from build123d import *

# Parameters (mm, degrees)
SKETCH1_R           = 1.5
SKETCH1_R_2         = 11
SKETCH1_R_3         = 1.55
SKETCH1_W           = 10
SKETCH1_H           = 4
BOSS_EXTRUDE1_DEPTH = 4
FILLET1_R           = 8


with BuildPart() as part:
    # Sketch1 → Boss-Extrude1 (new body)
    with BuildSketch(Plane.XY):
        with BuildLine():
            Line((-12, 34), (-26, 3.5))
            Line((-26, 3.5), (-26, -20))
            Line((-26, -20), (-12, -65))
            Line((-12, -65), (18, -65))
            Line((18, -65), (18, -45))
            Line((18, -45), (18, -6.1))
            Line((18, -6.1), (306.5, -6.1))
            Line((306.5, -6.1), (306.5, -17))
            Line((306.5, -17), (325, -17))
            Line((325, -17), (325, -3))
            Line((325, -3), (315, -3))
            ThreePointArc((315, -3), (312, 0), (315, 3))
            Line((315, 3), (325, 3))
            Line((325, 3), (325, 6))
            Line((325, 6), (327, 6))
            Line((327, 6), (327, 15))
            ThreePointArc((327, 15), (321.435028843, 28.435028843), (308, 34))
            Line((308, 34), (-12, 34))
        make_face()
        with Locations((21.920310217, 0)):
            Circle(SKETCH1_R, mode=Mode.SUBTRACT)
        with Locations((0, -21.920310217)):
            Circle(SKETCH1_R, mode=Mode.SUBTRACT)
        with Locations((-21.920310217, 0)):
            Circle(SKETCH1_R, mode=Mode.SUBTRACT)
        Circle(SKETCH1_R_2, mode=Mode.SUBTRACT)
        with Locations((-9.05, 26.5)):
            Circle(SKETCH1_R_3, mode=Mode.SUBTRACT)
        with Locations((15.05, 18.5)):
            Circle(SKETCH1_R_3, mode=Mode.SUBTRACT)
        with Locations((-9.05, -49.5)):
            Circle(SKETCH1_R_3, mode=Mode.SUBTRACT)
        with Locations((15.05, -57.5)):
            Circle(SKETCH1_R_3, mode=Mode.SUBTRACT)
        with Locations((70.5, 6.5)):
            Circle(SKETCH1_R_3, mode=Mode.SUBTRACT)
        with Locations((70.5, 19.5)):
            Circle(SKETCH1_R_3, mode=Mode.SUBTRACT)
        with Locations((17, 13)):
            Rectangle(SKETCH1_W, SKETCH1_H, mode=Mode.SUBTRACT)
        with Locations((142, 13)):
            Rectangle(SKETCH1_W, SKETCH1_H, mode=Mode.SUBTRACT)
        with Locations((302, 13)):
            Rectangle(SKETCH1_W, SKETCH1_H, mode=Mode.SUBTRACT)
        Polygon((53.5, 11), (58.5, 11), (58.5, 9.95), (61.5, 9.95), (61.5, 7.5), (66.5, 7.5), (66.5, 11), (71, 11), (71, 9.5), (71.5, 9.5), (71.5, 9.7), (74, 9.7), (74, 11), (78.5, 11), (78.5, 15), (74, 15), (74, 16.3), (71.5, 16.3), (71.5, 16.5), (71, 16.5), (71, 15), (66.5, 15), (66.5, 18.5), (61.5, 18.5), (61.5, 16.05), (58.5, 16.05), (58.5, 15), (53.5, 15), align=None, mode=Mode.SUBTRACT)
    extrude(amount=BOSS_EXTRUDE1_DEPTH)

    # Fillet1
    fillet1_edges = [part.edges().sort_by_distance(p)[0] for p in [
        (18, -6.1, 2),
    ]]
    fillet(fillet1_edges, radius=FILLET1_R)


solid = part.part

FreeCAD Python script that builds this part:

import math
import FreeCAD as App
import Part
import Sketcher
from FreeCAD import Vector
Q = App.Units.Quantity


def edges_at(feature, points):
    """Names of the edges that pass closest to the given points."""
    edges = feature.Shape.Edges
    near = lambda p: min(range(len(edges)), key=lambda i: edges[i].distToShape(Part.Vertex(*p))[0])
    return sorted({f"Edge{near(p) + 1}" for p in points})

doc = App.newDocument("Part")
params = doc.addObject("Spreadsheet::Sheet", "Params")
for row, (alias, value) in enumerate([
    ("sketch1_diameter", "3 mm"),
    ("sketch1_diameter2", "22 mm"),
    ("sketch1_radius", "3 mm"),
    ("sketch1_radius2", "19 mm"),
    ("sketch1_diameter3", "3.1 mm"),
    ("pad1_length", "4 mm"),
    ("fillet_radius", "8 mm"),
], start=1):
    params.set(f"A{row}", alias)
    params.set(f"B{row}", "=" + value)
    params.setAlias(f"B{row}", alias)

body = doc.addObject("PartDesign::Body", "Body")

# Sketch on XY plane
sketch1 = body.newObject("Sketcher::SketchObject", "Sketch")
sketch1.AttachmentSupport = (doc.getObject("XY_Plane"), [""])
sketch1.MapMode = "FlatFace"
sketch1.addGeometry([
    Part.LineSegment(Vector(-12, 34, 0), Vector(-26, 3.5, 0)),  # 0
    Part.LineSegment(Vector(-26, 3.5, 0), Vector(-26, -20, 0)),  # 1
    Part.LineSegment(Vector(-26, -20, 0), Vector(-12, -65, 0)),  # 2
    Part.LineSegment(Vector(-12, -65, 0), Vector(18, -65, 0)),  # 3
    Part.LineSegment(Vector(18, -65, 0), Vector(18, -6.1, 0)),  # 4
    Part.LineSegment(Vector(18, -6.1, 0), Vector(306.5, -6.1, 0)),  # 5
    Part.LineSegment(Vector(306.5, -6.1, 0), Vector(306.5, -17, 0)),  # 6
    Part.LineSegment(Vector(306.5, -17, 0), Vector(325, -17, 0)),  # 7
    Part.LineSegment(Vector(325, -17, 0), Vector(325, -3, 0)),  # 8
    Part.LineSegment(Vector(325, -3, 0), Vector(315, -3, 0)),  # 9
    Part.ArcOfCircle(Part.Circle(Vector(315, 0, 0), Vector(0, 0, 1), 3), math.radians(90), math.radians(270)),  # 10
    Part.LineSegment(Vector(315, 3, 0), Vector(325, 3, 0)),  # 11
    Part.LineSegment(Vector(325, 3, 0), Vector(325, 6, 0)),  # 12
    Part.LineSegment(Vector(325, 6, 0), Vector(327, 6, 0)),  # 13
    Part.LineSegment(Vector(327, 6, 0), Vector(327, 15, 0)),  # 14
    Part.ArcOfCircle(Part.Circle(Vector(308, 15, 0), Vector(0, 0, 1), 19), math.radians(0), math.radians(90)),  # 15
    Part.LineSegment(Vector(308, 34, 0), Vector(-12, 34, 0)),  # 16
    Part.Circle(Vector(15.05, -57.5, 0), Vector(0, 0, 1), 1.55),  # 17
    Part.Circle(Vector(-9.05, -49.5, 0), Vector(0, 0, 1), 1.55),  # 18
    Part.Circle(Vector(0, -21.92031, 0), Vector(0, 0, 1), 1.5),  # 19
    Part.Circle(Vector(-21.92031, 0, 0), Vector(0, 0, 1), 1.5),  # 20
    Part.Circle(Vector(0, 0, 0), Vector(0, 0, 1), 11),  # 21
    Part.Circle(Vector(21.92031, 0, 0), Vector(0, 0, 1), 1.5),  # 22
    Part.LineSegment(Vector(22, 11, 0), Vector(12, 11, 0)),  # 23
    Part.LineSegment(Vector(12, 11, 0), Vector(12, 15, 0)),  # 24
    Part.LineSegment(Vector(12, 15, 0), Vector(22, 15, 0)),  # 25
    Part.LineSegment(Vector(22, 15, 0), Vector(22, 11, 0)),  # 26
    Part.Circle(Vector(15.05, 18.5, 0), Vector(0, 0, 1), 1.55),  # 27
    Part.Circle(Vector(-9.05, 26.5, 0), Vector(0, 0, 1), 1.55),  # 28
    Part.Circle(Vector(70.5, 6.5, 0), Vector(0, 0, 1), 1.55),  # 29
    Part.LineSegment(Vector(58.5, 11, 0), Vector(53.5, 11, 0)),  # 30
    Part.LineSegment(Vector(53.5, 11, 0), Vector(53.5, 15, 0)),  # 31
    Part.LineSegment(Vector(53.5, 15, 0), Vector(58.5, 15, 0)),  # 32
    Part.LineSegment(Vector(58.5, 15, 0), Vector(58.5, 16.05, 0)),  # 33
    Part.LineSegment(Vector(58.5, 16.05, 0), Vector(61.5, 16.05, 0)),  # 34
    Part.LineSegment(Vector(61.5, 16.05, 0), Vector(61.5, 18.5, 0)),  # 35
    Part.LineSegment(Vector(61.5, 18.5, 0), Vector(66.5, 18.5, 0)),  # 36
    Part.LineSegment(Vector(66.5, 18.5, 0), Vector(66.5, 15, 0)),  # 37
    Part.LineSegment(Vector(66.5, 15, 0), Vector(71, 15, 0)),  # 38
    Part.LineSegment(Vector(71, 15, 0), Vector(71, 16.5, 0)),  # 39
    Part.LineSegment(Vector(71, 16.5, 0), Vector(71.5, 16.5, 0)),  # 40
    Part.LineSegment(Vector(71.5, 16.5, 0), Vector(71.5, 16.3, 0)),  # 41
    Part.LineSegment(Vector(71.5, 16.3, 0), Vector(74, 16.3, 0)),  # 42
    Part.LineSegment(Vector(74, 16.3, 0), Vector(74, 15, 0)),  # 43
    Part.LineSegment(Vector(74, 15, 0), Vector(78.5, 15, 0)),  # 44
    Part.LineSegment(Vector(78.5, 15, 0), Vector(78.5, 11, 0)),  # 45
    Part.LineSegment(Vector(78.5, 11, 0), Vector(74, 11, 0)),  # 46
    Part.LineSegment(Vector(74, 11, 0), Vector(74, 9.7, 0)),  # 47
    Part.LineSegment(Vector(74, 9.7, 0), Vector(71.5, 9.7, 0)),  # 48
    Part.LineSegment(Vector(71.5, 9.7, 0), Vector(71.5, 9.5, 0)),  # 49
    Part.LineSegment(Vector(71.5, 9.5, 0), Vector(71, 9.5, 0)),  # 50
    Part.LineSegment(Vector(71, 9.5, 0), Vector(71, 11, 0)),  # 51
    Part.LineSegment(Vector(71, 11, 0), Vector(66.5, 11, 0)),  # 52
    Part.LineSegment(Vector(66.5, 11, 0), Vector(66.5, 7.5, 0)),  # 53
    Part.LineSegment(Vector(66.5, 7.5, 0), Vector(61.5, 7.5, 0)),  # 54
    Part.LineSegment(Vector(61.5, 7.5, 0), Vector(61.5, 9.95, 0)),  # 55
    Part.LineSegment(Vector(61.5, 9.95, 0), Vector(58.5, 9.95, 0)),  # 56
    Part.LineSegment(Vector(58.5, 9.95, 0), Vector(58.5, 11, 0)),  # 57
    Part.Circle(Vector(70.5, 19.5, 0), Vector(0, 0, 1), 1.55),  # 58
    Part.LineSegment(Vector(147, 11, 0), Vector(137, 11, 0)),  # 59
    Part.LineSegment(Vector(137, 11, 0), Vector(137, 15, 0)),  # 60
    Part.LineSegment(Vector(137, 15, 0), Vector(147, 15, 0)),  # 61
    Part.LineSegment(Vector(147, 15, 0), Vector(147, 11, 0)),  # 62
    Part.LineSegment(Vector(307, 11, 0), Vector(297, 11, 0)),  # 63
    Part.LineSegment(Vector(297, 11, 0), Vector(297, 15, 0)),  # 64
    Part.LineSegment(Vector(297, 15, 0), Vector(307, 15, 0)),  # 65
    Part.LineSegment(Vector(307, 15, 0), Vector(307, 11, 0)),  # 66
], False)
sketch1.addConstraint([
    Sketcher.Constraint("Coincident", 0, 2, 1, 1),
    Sketcher.Constraint("Coincident", 1, 2, 2, 1),
    Sketcher.Constraint("Coincident", 2, 2, 3, 1),
    Sketcher.Constraint("Coincident", 3, 2, 4, 1),
    Sketcher.Constraint("Coincident", 4, 2, 5, 1),
    Sketcher.Constraint("Coincident", 5, 2, 6, 1),
    Sketcher.Constraint("Coincident", 6, 2, 7, 1),
    Sketcher.Constraint("Coincident", 7, 2, 8, 1),
    Sketcher.Constraint("Coincident", 8, 2, 9, 1),
    Sketcher.Constraint("Tangent", 9, 2, 10, 2),
    Sketcher.Constraint("Tangent", 10, 1, 11, 1),
    Sketcher.Constraint("Coincident", 11, 2, 12, 1),
    Sketcher.Constraint("Coincident", 12, 2, 13, 1),
    Sketcher.Constraint("Coincident", 13, 2, 14, 1),
    Sketcher.Constraint("Tangent", 14, 2, 15, 1),
    Sketcher.Constraint("Tangent", 15, 2, 16, 1),
    Sketcher.Constraint("Coincident", 16, 2, 0, 1),
    Sketcher.Constraint("Coincident", 23, 2, 24, 1),
    Sketcher.Constraint("Coincident", 24, 2, 25, 1),
    Sketcher.Constraint("Coincident", 25, 2, 26, 1),
    Sketcher.Constraint("Coincident", 26, 2, 23, 1),
    Sketcher.Constraint("Coincident", 30, 2, 31, 1),
    Sketcher.Constraint("Coincident", 31, 2, 32, 1),
    Sketcher.Constraint("Coincident", 32, 2, 33, 1),
    Sketcher.Constraint("Coincident", 33, 2, 34, 1),
    Sketcher.Constraint("Coincident", 34, 2, 35, 1),
    Sketcher.Constraint("Coincident", 35, 2, 36, 1),
    Sketcher.Constraint("Coincident", 36, 2, 37, 1),
    Sketcher.Constraint("Coincident", 37, 2, 38, 1),
    Sketcher.Constraint("Coincident", 38, 2, 39, 1),
    Sketcher.Constraint("Coincident", 39, 2, 40, 1),
    Sketcher.Constraint("Coincident", 40, 2, 41, 1),
    Sketcher.Constraint("Coincident", 41, 2, 42, 1),
    Sketcher.Constraint("Coincident", 42, 2, 43, 1),
    Sketcher.Constraint("Coincident", 43, 2, 44, 1),
    Sketcher.Constraint("Coincident", 44, 2, 45, 1),
    Sketcher.Constraint("Coincident", 45, 2, 46, 1),
    Sketcher.Constraint("Coincident", 46, 2, 47, 1),
    Sketcher.Constraint("Coincident", 47, 2, 48, 1),
    Sketcher.Constraint("Coincident", 48, 2, 49, 1),
    Sketcher.Constraint("Coincident", 49, 2, 50, 1),
    Sketcher.Constraint("Coincident", 50, 2, 51, 1),
    Sketcher.Constraint("Coincident", 51, 2, 52, 1),
    Sketcher.Constraint("Coincident", 52, 2, 53, 1),
    Sketcher.Constraint("Coincident", 53, 2, 54, 1),
    Sketcher.Constraint("Coincident", 54, 2, 55, 1),
    Sketcher.Constraint("Coincident", 55, 2, 56, 1),
    Sketcher.Constraint("Coincident", 56, 2, 57, 1),
    Sketcher.Constraint("Coincident", 57, 2, 30, 1),
    Sketcher.Constraint("Coincident", 59, 2, 60, 1),
    Sketcher.Constraint("Coincident", 60, 2, 61, 1),
    Sketcher.Constraint("Coincident", 61, 2, 62, 1),
    Sketcher.Constraint("Coincident", 62, 2, 59, 1),
    Sketcher.Constraint("Coincident", 63, 2, 64, 1),
    Sketcher.Constraint("Coincident", 64, 2, 65, 1),
    Sketcher.Constraint("Coincident", 65, 2, 66, 1),
    Sketcher.Constraint("Coincident", 66, 2, 63, 1),
    Sketcher.Constraint("Vertical", 1),
    Sketcher.Constraint("Horizontal", 3),
    Sketcher.Constraint("Vertical", 4),
    Sketcher.Constraint("Horizontal", 5),
    Sketcher.Constraint("Vertical", 6),
    Sketcher.Constraint("Horizontal", 7),
    Sketcher.Constraint("Vertical", 8),
    Sketcher.Constraint("Horizontal", 9),
    Sketcher.Constraint("Horizontal", 11),
    Sketcher.Constraint("Vertical", 12),
    Sketcher.Constraint("Horizontal", 13),
    Sketcher.Constraint("Vertical", 14),
    Sketcher.Constraint("Horizontal", 16),
    Sketcher.Constraint("Horizontal", 23),
    Sketcher.Constraint("Vertical", 24),
    Sketcher.Constraint("Horizontal", 25),
    Sketcher.Constraint("Vertical", 26),
    Sketcher.Constraint("Horizontal", 30),
    Sketcher.Constraint("Vertical", 31),
    Sketcher.Constraint("Horizontal", 32),
    Sketcher.Constraint("Vertical", 33),
    Sketcher.Constraint("Horizontal", 34),
    Sketcher.Constraint("Vertical", 35),
    Sketcher.Constraint("Horizontal", 36),
    Sketcher.Constraint("Vertical", 37),
    Sketcher.Constraint("Horizontal", 38),
    Sketcher.Constraint("Vertical", 39),
    Sketcher.Constraint("Horizontal", 40),
    Sketcher.Constraint("Vertical", 41),
    Sketcher.Constraint("Horizontal", 42),
    Sketcher.Constraint("Vertical", 43),
    Sketcher.Constraint("Horizontal", 44),
    Sketcher.Constraint("Vertical", 45),
    Sketcher.Constraint("Horizontal", 46),
    Sketcher.Constraint("Vertical", 47),
    Sketcher.Constraint("Horizontal", 48),
    Sketcher.Constraint("Vertical", 49),
    Sketcher.Constraint("Horizontal", 50),
    Sketcher.Constraint("Vertical", 51),
    Sketcher.Constraint("Horizontal", 52),
    Sketcher.Constraint("Vertical", 53),
    Sketcher.Constraint("Horizontal", 54),
    Sketcher.Constraint("Vertical", 55),
    Sketcher.Constraint("Horizontal", 56),
    Sketcher.Constraint("Vertical", 57),
    Sketcher.Constraint("Horizontal", 59),
    Sketcher.Constraint("Vertical", 60),
    Sketcher.Constraint("Horizontal", 61),
    Sketcher.Constraint("Vertical", 62),
    Sketcher.Constraint("Horizontal", 63),
    Sketcher.Constraint("Vertical", 64),
    Sketcher.Constraint("Horizontal", 65),
    Sketcher.Constraint("Vertical", 66),
    Sketcher.Constraint("Coincident", 21, 3, -1, 1),
    Sketcher.Constraint("Equal", 17, 18),
    Sketcher.Constraint("Equal", 19, 20),
    Sketcher.Constraint("Equal", 20, 22),
    Sketcher.Constraint("Equal", 18, 27),
    Sketcher.Constraint("Equal", 27, 28),
    Sketcher.Constraint("Equal", 28, 29),
    Sketcher.Constraint("Equal", 29, 58),
    Sketcher.Constraint("Symmetric", 20, 3, 22, 3, -1, 1),
    Sketcher.Constraint("Symmetric", 8, 2, 11, 2, -1),
    Sketcher.Constraint("PointOnObject", 19, 3, -2),
    Sketcher.Constraint("PointOnObject", 20, 3, -1),
    Sketcher.Constraint("Horizontal", 14, 2, 24, 2),
    Sketcher.Constraint("Horizontal", 26, 2, 30, 2),
    Sketcher.Constraint("Horizontal", 25, 2, 31, 2),
    Sketcher.Constraint("Horizontal", 27, 3, 35, 2),
    Sketcher.Constraint("Horizontal", 32, 2, 37, 2),
    Sketcher.Constraint("Horizontal", 38, 2, 43, 2),
    Sketcher.Constraint("Horizontal", 30, 2, 45, 2),
    Sketcher.Constraint("Horizontal", 46, 2, 51, 2),
    Sketcher.Constraint("Horizontal", 57, 2, 59, 2),
    Sketcher.Constraint("Horizontal", 44, 2, 60, 2),
    Sketcher.Constraint("Horizontal", 62, 2, 63, 2),
    Sketcher.Constraint("Horizontal", 61, 2, 64, 2),
    Sketcher.Constraint("Vertical", 17, 3, 27, 3),
    Sketcher.Constraint("Vertical", 18, 3, 28, 3),
    Sketcher.Constraint("Vertical", 29, 3, 58, 3),
    Sketcher.Constraint("Vertical", 2, 2, 16, 2),
    Sketcher.Constraint("Vertical", 43, 2, 46, 2),
    Sketcher.Constraint("Vertical", 41, 2, 48, 2),
    Sketcher.Constraint("Vertical", 39, 2, 50, 2),
    Sketcher.Constraint("Vertical", 37, 2, 52, 2),
    Sketcher.Constraint("Vertical", 35, 2, 54, 2),
    Sketcher.Constraint("Vertical", 33, 2, 56, 2),
    Sketcher.Constraint("Equal", 11, 23),
    Sketcher.Constraint("Equal", 32, 36),
    Sketcher.Constraint("Equal", 38, 44),
    Sketcher.Constraint("Equal", 25, 59),
    Sketcher.Constraint("Equal", 61, 63),
    Sketcher.Constraint("Equal", 56, 12),
    Sketcher.Constraint("Equal", 43, 47),
    Sketcher.Constraint("Equal", 41, 49),
    Sketcher.Constraint("Equal", 37, 53),
    Sketcher.Constraint("Equal", 35, 55),
    Sketcher.Constraint("Diameter", 19, Q("3 mm")),
    Sketcher.Constraint("Diameter", 21, Q("22 mm")),
    Sketcher.Constraint("Radius", 10, Q("3 mm")),
    Sketcher.Constraint("Radius", 15, Q("19 mm")),
    Sketcher.Constraint("Diameter", 17, Q("3.1 mm")),
    Sketcher.Constraint("DistanceX", 3, 1, 3, 2, Q("30 mm")),
    Sketcher.Constraint("DistanceX", 9, 2, 9, 1, Q("10 mm")),
    Sketcher.Constraint("DistanceX", 13, 1, 13, 2, Q("2 mm")),
    Sketcher.Constraint("DistanceX", 16, 2, 16, 1, Q("320 mm")),
    Sketcher.Constraint("DistanceX", 30, 2, 30, 1, Q("5 mm")),
    Sketcher.Constraint("DistanceX", 34, 1, 34, 2, Q("3 mm")),
    Sketcher.Constraint("DistanceY", 8, 1, 8, 2, Q("14 mm")),
    Sketcher.Constraint("DistanceY", 14, 1, 14, 2, Q("9 mm")),
    Sketcher.Constraint("DistanceY", 24, 1, 24, 2, Q("4 mm")),
    Sketcher.Constraint("DistanceX", 5, 1, 5, 2, Q("288.5 mm")),
    Sketcher.Constraint("DistanceX", 38, 1, 38, 2, Q("4.5 mm")),
    Sketcher.Constraint("DistanceX", 40, 1, 40, 2, Q("0.5 mm")),
    Sketcher.Constraint("DistanceX", 42, 1, 42, 2, Q("2.5 mm")),
    Sketcher.Constraint("DistanceY", 1, 2, 1, 1, Q("23.5 mm")),
    Sketcher.Constraint("DistanceY", 4, 1, 4, 2, Q("58.9 mm")),
    Sketcher.Constraint("DistanceY", 6, 2, 6, 1, Q("10.9 mm")),
    Sketcher.Constraint("DistanceY", 37, 2, 37, 1, Q("3.5 mm")),
    Sketcher.Constraint("DistanceY", 39, 1, 39, 2, Q("1.5 mm")),
    Sketcher.Constraint("DistanceY", 41, 2, 41, 1, Q("0.2 mm")),
    Sketcher.Constraint("DistanceX", -1, 1, 10, 3, Q("315 mm")),
    Sketcher.Constraint("DistanceX", 0, 2, -1, 1, Q("26 mm")),
    Sketcher.Constraint("DistanceY", 1, 2, -1, 1, Q("20 mm")),
    Sketcher.Constraint("DistanceX", -1, 1, 23, 2, Q("12 mm")),
    Sketcher.Constraint("DistanceX", -1, 1, 38, 2, Q("71 mm")),
    Sketcher.Constraint("DistanceX", -1, 1, 59, 2, Q("137 mm")),
    Sketcher.Constraint("DistanceX", -1, 1, 63, 2, Q("297 mm")),
    Sketcher.Constraint("DistanceY", 33, 1, 33, 2, Q("1.05 mm")),
    Sketcher.Constraint("DistanceY", 17, 3, -1, 1, Q("57.5 mm")),
    Sketcher.Constraint("DistanceY", 18, 3, -1, 1, Q("49.5 mm")),
    Sketcher.Constraint("DistanceY", -1, 1, 28, 3, Q("26.5 mm")),
    Sketcher.Constraint("DistanceX", -1, 1, 29, 3, Q("70.5 mm")),
    Sketcher.Constraint("DistanceY", -1, 1, 29, 3, Q("6.5 mm")),
    Sketcher.Constraint("DistanceY", -1, 1, 58, 3, Q("19.5 mm")),
    Sketcher.Constraint("DistanceX", -1, 1, 17, 3, Q("15.05 mm")),
    Sketcher.Constraint("DistanceX", 18, 3, -1, 1, Q("9.05 mm")),
    Sketcher.Constraint("DistanceY", 19, 3, -1, 1, Q("21.92031 mm")),
    Sketcher.Constraint("DistanceX", 20, 3, -1, 1, Q("21.92031 mm")),
])
sketch1.setExpression("Constraints[154]", "Params.sketch1_diameter")
sketch1.setExpression("Constraints[155]", "Params.sketch1_diameter2")
sketch1.setExpression("Constraints[156]", "Params.sketch1_radius")
sketch1.setExpression("Constraints[157]", "Params.sketch1_radius2")
sketch1.setExpression("Constraints[158]", "Params.sketch1_diameter3")
pad1 = body.newObject("PartDesign::Pad", "Pad")
pad1.Profile = sketch1
pad1.setExpression("Length", "Params.pad1_length")
doc.recompute()

fillet = body.newObject("PartDesign::Fillet", "Fillet")
fillet.Base = (pad1, edges_at(pad1, [(18, -6.1, 2)]))
fillet.setExpression("Radius", "Params.fillet_radius")

doc.recompute()
